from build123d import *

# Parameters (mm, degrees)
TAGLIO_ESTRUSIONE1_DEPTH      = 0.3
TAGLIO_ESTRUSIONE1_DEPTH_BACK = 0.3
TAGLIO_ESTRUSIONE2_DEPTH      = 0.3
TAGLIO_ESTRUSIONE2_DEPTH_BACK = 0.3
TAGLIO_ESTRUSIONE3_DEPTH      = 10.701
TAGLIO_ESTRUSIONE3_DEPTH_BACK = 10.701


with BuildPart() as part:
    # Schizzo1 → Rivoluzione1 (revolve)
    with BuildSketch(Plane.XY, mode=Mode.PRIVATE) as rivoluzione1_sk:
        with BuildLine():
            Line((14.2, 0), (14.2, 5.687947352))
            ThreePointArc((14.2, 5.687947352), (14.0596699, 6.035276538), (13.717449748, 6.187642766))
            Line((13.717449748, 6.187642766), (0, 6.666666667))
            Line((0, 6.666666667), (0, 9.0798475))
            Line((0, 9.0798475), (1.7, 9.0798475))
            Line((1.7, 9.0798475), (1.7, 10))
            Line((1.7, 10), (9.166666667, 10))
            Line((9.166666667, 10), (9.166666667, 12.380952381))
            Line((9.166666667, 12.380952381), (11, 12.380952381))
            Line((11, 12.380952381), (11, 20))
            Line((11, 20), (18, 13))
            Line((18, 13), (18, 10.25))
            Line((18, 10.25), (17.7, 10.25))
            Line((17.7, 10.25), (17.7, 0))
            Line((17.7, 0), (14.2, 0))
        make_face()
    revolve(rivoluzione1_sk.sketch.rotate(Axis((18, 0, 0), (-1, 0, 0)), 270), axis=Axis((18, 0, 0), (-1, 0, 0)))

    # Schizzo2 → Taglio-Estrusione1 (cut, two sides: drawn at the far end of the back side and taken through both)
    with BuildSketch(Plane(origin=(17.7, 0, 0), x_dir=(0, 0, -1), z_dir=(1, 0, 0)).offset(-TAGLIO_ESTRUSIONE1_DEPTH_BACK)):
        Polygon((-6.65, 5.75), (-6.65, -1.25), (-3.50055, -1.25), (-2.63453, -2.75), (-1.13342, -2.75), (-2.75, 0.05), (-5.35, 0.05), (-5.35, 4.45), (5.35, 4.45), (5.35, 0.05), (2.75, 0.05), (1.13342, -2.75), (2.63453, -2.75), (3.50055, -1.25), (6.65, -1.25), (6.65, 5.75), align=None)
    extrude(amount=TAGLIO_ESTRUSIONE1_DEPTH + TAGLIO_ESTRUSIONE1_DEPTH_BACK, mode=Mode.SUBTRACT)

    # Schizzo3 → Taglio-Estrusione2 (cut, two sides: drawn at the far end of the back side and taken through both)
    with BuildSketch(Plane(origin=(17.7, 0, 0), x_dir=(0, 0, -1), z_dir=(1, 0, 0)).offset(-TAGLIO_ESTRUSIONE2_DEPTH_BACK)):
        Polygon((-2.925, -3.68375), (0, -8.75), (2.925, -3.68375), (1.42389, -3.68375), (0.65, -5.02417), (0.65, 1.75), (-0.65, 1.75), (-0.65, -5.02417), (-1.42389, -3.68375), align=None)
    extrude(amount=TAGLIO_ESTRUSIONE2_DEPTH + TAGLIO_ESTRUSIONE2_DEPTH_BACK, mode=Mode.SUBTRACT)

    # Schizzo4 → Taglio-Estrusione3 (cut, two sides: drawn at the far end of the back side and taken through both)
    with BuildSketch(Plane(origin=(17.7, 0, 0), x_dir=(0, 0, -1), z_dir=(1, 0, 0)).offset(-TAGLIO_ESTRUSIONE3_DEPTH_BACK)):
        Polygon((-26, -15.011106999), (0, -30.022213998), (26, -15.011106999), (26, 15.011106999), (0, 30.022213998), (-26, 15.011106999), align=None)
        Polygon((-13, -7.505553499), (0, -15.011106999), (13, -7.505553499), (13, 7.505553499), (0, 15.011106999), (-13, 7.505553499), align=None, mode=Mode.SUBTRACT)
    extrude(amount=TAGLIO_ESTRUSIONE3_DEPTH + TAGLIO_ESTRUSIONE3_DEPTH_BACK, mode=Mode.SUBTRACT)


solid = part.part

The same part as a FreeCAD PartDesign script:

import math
import FreeCAD as App
import Part
import Sketcher
Q = App.Units.Quantity

doc = App.newDocument("Part")
body = doc.addObject("PartDesign::Body", "Body")

# Sketch on XY plane
sketch1 = body.newObject("Sketcher::SketchObject", "Sketch")
sketch1.AttachmentSupport = (doc.getObject("XY_Plane"), [""])
sketch1.MapMode = "FlatFace"
sketch1.addGeometry([
    Part.LineSegment(App.Vector(14.2, 5.69, 0), App.Vector(14.2, 0, 0)),  # 0
    Part.LineSegment(App.Vector(14.2, 0, 0), App.Vector(17.7, 0, 0)),  # 1
    Part.LineSegment(App.Vector(17.7, 0, 0), App.Vector(17.7, 10.25, 0)),  # 2
    Part.LineSegment(App.Vector(17.7, 10.25, 0), App.Vector(18, 10.25, 0)),  # 3
    Part.LineSegment(App.Vector(18, 10.25, 0), App.Vector(18, 13, 0)),  # 4
    Part.LineSegment(App.Vector(18, 13, 0), App.Vector(11, 20, 0)),  # 5
    Part.LineSegment(App.Vector(11, 20, 0), App.Vector(11, 12.38, 0)),  # 6
    Part.LineSegment(App.Vector(11, 12.38, 0), App.Vector(9.17, 12.38, 0)),  # 7
    Part.LineSegment(App.Vector(9.17, 12.38, 0), App.Vector(9.17, 10, 0)),  # 8
    Part.LineSegment(App.Vector(9.17, 10, 0), App.Vector(1.7, 10, 0)),  # 9
    Part.LineSegment(App.Vector(1.7, 10, 0), App.Vector(1.7, 9.08, 0)),  # 10
    Part.LineSegment(App.Vector(1.7, 9.08, 0), App.Vector(0, 9.08, 0)),  # 11
    Part.LineSegment(App.Vector(0, 9.08, 0), App.Vector(0, 6.67, 0)),  # 12
    Part.LineSegment(App.Vector(0, 6.67, 0), App.Vector(13.72, 6.19, 0)),  # 13
    Part.ArcOfCircle(Part.Circle(App.Vector(13.7, 5.69, 0), App.Vector(0, 0, 1), 0.5), math.radians(0), math.radians(88)),  # 14
], False)
sketch1.addConstraint([
    Sketcher.Constraint("Coincident", 0, 2, 1, 1),
    Sketcher.Constraint("Coincident", 1, 2, 2, 1),
    Sketcher.Constraint("Coincident", 2, 2, 3, 1),
    Sketcher.Constraint("Coincident", 3, 2, 4, 1),
    Sketcher.Constraint("Coincident", 4, 2, 5, 1),
    Sketcher.Constraint("Coincident", 5, 2, 6, 1),
    Sketcher.Constraint("Coincident", 6, 2, 7, 1),
    Sketcher.Constraint("Coincident", 7, 2, 8, 1),
    Sketcher.Constraint("Coincident", 8, 2, 9, 1),
    Sketcher.Constraint("Coincident", 9, 2, 10, 1),
    Sketcher.Constraint("Coincident", 10, 2, 11, 1),
    Sketcher.Constraint("Coincident", 11, 2, 12, 1),
    Sketcher.Constraint("Coincident", 12, 2, 13, 1),
    Sketcher.Constraint("Tangent", 13, 2, 14, 2),
    Sketcher.Constraint("Tangent", 14, 1, 0, 1),
    Sketcher.Constraint("Vertical", 0),
    Sketcher.Constraint("Horizontal", 1),
    Sketcher.Constraint("Vertical", 2),
    Sketcher.Constraint("Horizontal", 3),
    Sketcher.Constraint("Vertical", 4),
    Sketcher.Constraint("Vertical", 6),
    Sketcher.Constraint("Horizontal", 7),
    Sketcher.Constraint("Vertical", 8),
    Sketcher.Constraint("Horizontal", 9),
    Sketcher.Constraint("Vertical", 10),
    Sketcher.Constraint("Horizontal", 11),
    Sketcher.Constraint("Vertical", 12),
    Sketcher.Constraint("PointOnObject", 0, 2, -1),
    Sketcher.Constraint("PointOnObject", 11, 2, -2),
    Sketcher.Constraint("Radius", 14, 0.5),
    Sketcher.Constraint("Angle", 5, Q("135 deg")),
    Sketcher.Constraint("Angle", 13, Q("-2 deg")),
    Sketcher.Constraint("DistanceX", 1, 1, 1, 2, 3.5),
    Sketcher.Constraint("DistanceX", 3, 1, 3, 2, 0.3),
    Sketcher.Constraint("DistanceX", 11, 2, 11, 1, 1.7),
    Sketcher.Constraint("DistanceX", -1, 1, 3, 2, 18.0),
    Sketcher.Constraint("DistanceY", -1, 1, 4, 2, 13.0),
    Sketcher.Constraint("DistanceX", -1, 1, 5, 2, 11.0),
    Sketcher.Constraint("DistanceY", -1, 1, 8, 2, 10.0),
    Sketcher.Constraint("DistanceY", 2, 1, 2, 2, 10.25),
    Sketcher.Constraint("DistanceY", 12, 2, 12, 1, 2.413181),
    Sketcher.Constraint("DistanceX", 7, 2, 7, 1, 1.833333),
    Sketcher.Constraint("DistanceY", 0, 2, 0, 1, 5.687947),
    Sketcher.Constraint("DistanceY", 6, 2, 6, 1, 7.619048),
])
revolution = body.newObject("PartDesign::Revolution", "Revolution")
revolution.Profile = sketch1
revolution.ReferenceAxis = (sketch1, ["H_Axis"])
revolution.Angle = 360

# Sketch on YZ plane
sketch2 = body.newObject("Sketcher::SketchObject", "Sketch001")
sketch2.AttachmentSupport = (doc.getObject("YZ_Plane"), [""])
sketch2.MapMode = "FlatFace"
sketch2.AttachmentOffset = App.Placement(App.Vector(0, 0, 17.7), App.Rotation())
sketch2.addGeometry([
    Part.LineSegment(App.Vector(5.8, 6.7, 0), App.Vector(-1.2, 6.7, 0)),  # 0
    Part.LineSegment(App.Vector(-1.2, 6.7, 0), App.Vector(-1.2, 3.5, 0)),  # 1
    Part.LineSegment(App.Vector(-1.2, 3.5, 0), App.Vector(-2.8, 2.6, 0)),  # 2
    Part.LineSegment(App.Vector(-2.8, 2.6, 0), App.Vector(-2.8, 1.1, 0)),  # 3
    Part.LineSegment(App.Vector(-2.8, 1.1, 0), App.Vector(0.1, 2.8, 0)),  # 4
    Part.LineSegment(App.Vector(0.1, 2.8, 0), App.Vector(0.1, 5.3, 0)),  # 5
    Part.LineSegment(App.Vector(0.1, 5.3, 0), App.Vector(4.5, 5.3, 0)),  # 6
    Part.LineSegment(App.Vector(4.5, 5.3, 0), App.Vector(4.5, -5.3, 0)),  # 7
    Part.LineSegment(App.Vector(4.5, -5.3, 0), App.Vector(0.1, -5.3, 0)),  # 8
    Part.LineSegment(App.Vector(0.1, -5.3, 0), App.Vector(0.1, -2.8, 0)),  # 9
    Part.LineSegment(App.Vector(0.1, -2.8, 0), App.Vector(-2.8, -1.1, 0)),  # 10
    Part.LineSegment(App.Vector(-2.8, -1.1, 0), App.Vector(-2.8, -2.6, 0)),  # 11
    Part.LineSegment(App.Vector(-2.8, -2.6, 0), App.Vector(-1.2, -3.5, 0)),  # 12
    Part.LineSegment(App.Vector(-1.2, -3.5, 0), App.Vector(-1.2, -6.7, 0)),  # 13
    Part.LineSegment(App.Vector(-1.2, -6.7, 0), App.Vector(5.8, -6.7, 0)),  # 14
    Part.LineSegment(App.Vector(5.8, -6.7, 0), App.Vector(5.8, 6.7, 0)),  # 15
], False)
sketch2.addConstraint([
    Sketcher.Constraint("Coincident", 0, 2, 1, 1),
    Sketcher.Constraint("Coincident", 1, 2, 2, 1),
    Sketcher.Constraint("Coincident", 2, 2, 3, 1),
    Sketcher.Constraint("Coincident", 3, 2, 4, 1),
    Sketcher.Constraint("Coincident", 4, 2, 5, 1),
    Sketcher.Constraint("Coincident", 5, 2, 6, 1),
    Sketcher.Constraint("Coincident", 6, 2, 7, 1),
    Sketcher.Constraint("Coincident", 7, 2, 8, 1),
    Sketcher.Constraint("Coincident", 8, 2, 9, 1),
    Sketcher.Constraint("Coincident", 9, 2, 10, 1),
    Sketcher.Constraint("Coincident", 10, 2, 11, 1),
    Sketcher.Constraint("Coincident", 11, 2, 12, 1),
    Sketcher.Constraint("Coincident", 12, 2, 13, 1),
    Sketcher.Constraint("Coincident", 13, 2, 14, 1),
    Sketcher.Constraint("Coincident", 14, 2, 15, 1),
    Sketcher.Constraint("Coincident", 15, 2, 0, 1),
    Sketcher.Constraint("Horizontal", 0),
    Sketcher.Constraint("Vertical", 1),
    Sketcher.Constraint("Vertical", 3),
    Sketcher.Constraint("Vertical", 5),
    Sketcher.Constraint("Horizontal", 6),
    Sketcher.Constraint("Vertical", 7),
    Sketcher.Constraint("Horizontal", 8),
    Sketcher.Constraint("Vertical", 9),
    Sketcher.Constraint("Vertical", 11),
    Sketcher.Constraint("Vertical", 13),
    Sketcher.Constraint("Horizontal", 14),
    Sketcher.Constraint("Vertical", 15),
    Sketcher.Constraint("Symmetric", 5, 2, 8, 2, -1),
    Sketcher.Constraint("Symmetric", 3, 2, 10, 2, -1),
    Sketcher.Constraint("Symmetric", 1, 2, 12, 2, -1),
    Sketcher.Constraint("Equal", 5, 9),
    Sketcher.Constraint("Equal", 3, 11),
    Sketcher.Constraint("Equal", 1, 13),
    Sketcher.Constraint("DistanceX", 0, 2, 0, 1, 7.0),
    Sketcher.Constraint("Angle", 4, Q("29.999988 deg")),
    Sketcher.Constraint("DistanceX", 6, 1, 6, 2, 4.4),
    Sketcher.Constraint("DistanceY", 5, 1, 5, 2, 2.6),
    Sketcher.Constraint("DistanceY", 7, 2, 7, 1, 10.7),
    Sketcher.Constraint("DistanceY", 15, 1, 15, 2, 13.3),
    Sketcher.Constraint("DistanceX", 2, 2, 1, 2, 1.5),
    Sketcher.Constraint("DistanceX", 1, 2, 4, 2, 1.3),
    Sketcher.Constraint("DistanceX", 0, 2, -1, 1, 1.25),
    Sketcher.Constraint("DistanceY", 1, 2, 1, 1, 3.14945),
    Sketcher.Constraint("DistanceY", 3, 2, 3, 1, 1.50111),
])
pocket1 = body.newObject("PartDesign::Pocket", "Pocket")
pocket1.Profile = sketch2
pocket1.Type = "TwoLengths"
pocket1.Length = 0.3
pocket1.Length2 = 0.3
pocket1.Reversed = True

# Sketch on YZ plane
sketch3 = body.newObject("Sketcher::SketchObject", "Sketch002")
sketch3.AttachmentSupport = (doc.getObject("YZ_Plane"), [""])
sketch3.MapMode = "FlatFace"
sketch3.AttachmentOffset = App.Placement(App.Vector(0, 0, 17.7), App.Rotation())
sketch3.addGeometry([
    Part.LineSegment(App.Vector(-3.7, 2.9, 0), App.Vector(-8.8, 0, 0)),  # 0
    Part.LineSegment(App.Vector(-8.8, 0, 0), App.Vector(-3.7, -2.9, 0)),  # 1
    Part.LineSegment(App.Vector(-3.7, -2.9, 0), App.Vector(-3.7, -1.4, 0)),  # 2
    Part.LineSegment(App.Vector(-3.7, -1.4, 0), App.Vector(-5, -0.7, 0)),  # 3
    Part.LineSegment(App.Vector(-5, -0.7, 0), App.Vector(1.8, -0.7, 0)),  # 4
    Part.LineSegment(App.Vector(1.8, -0.7, 0), App.Vector(1.8, 0.7, 0)),  # 5
    Part.LineSegment(App.Vector(1.8, 0.7, 0), App.Vector(-5, 0.7, 0)),  # 6
    Part.LineSegment(App.Vector(-5, 0.7, 0), App.Vector(-3.7, 1.4, 0)),  # 7
    Part.LineSegment(App.Vector(-3.7, 1.4, 0), App.Vector(-3.7, 2.9, 0)),  # 8
], False)
sketch3.addConstraint([
    Sketcher.Constraint("Coincident", 0, 2, 1, 1),
    Sketcher.Constraint("Coincident", 1, 2, 2, 1),
    Sketcher.Constraint("Coincident", 2, 2, 3, 1),
    Sketcher.Constraint("Coincident", 3, 2, 4, 1),
    Sketcher.Constraint("Coincident", 4, 2, 5, 1),
    Sketcher.Constraint("Coincident", 5, 2, 6, 1),
    Sketcher.Constraint("Coincident", 6, 2, 7, 1),
    Sketcher.Constraint("Coincident", 7, 2, 8, 1),
    Sketcher.Constraint("Coincident", 8, 2, 0, 1),
    Sketcher.Constraint("Vertical", 2),
    Sketcher.Constraint("Horizontal", 4),
    Sketcher.Constraint("Vertical", 5),
    Sketcher.Constraint("Horizontal", 6),
    Sketcher.Constraint("Vertical", 8),
    Sketcher.Constraint("Symmetric", 3, 2, 6, 2, -1),
    Sketcher.Constraint("Symmetric", 2, 2, 7, 2, -1),
    Sketcher.Constraint("PointOnObject", 0, 2, -1),
    Sketcher.Constraint("Parallel", 1, 3),
    Sketcher.Constraint("Parallel", 0, 7),
    Sketcher.Constraint("Angle", 0, Q("-150.000007 deg")),
    Sketcher.Constraint("DistanceY", 5, 1, 5, 2, 1.3),
    Sketcher.Constraint("DistanceX", 0, 2, 4, 2, 10.5),
    Sketcher.Constraint("Distance", 0, 5.850001),
    Sketcher.Constraint("DistanceX", 0, 2, -1, 1, 8.75),
    Sketcher.Constraint("DistanceX", 4, 1, 4, 2, 6.77417),
])
pocket2 = body.newObject("PartDesign::Pocket", "Pocket001")
pocket2.Profile = sketch3
pocket2.Type = "TwoLengths"
pocket2.Length = 0.3
pocket2.Length2 = 0.3
pocket2.Reversed = True

# Sketch on YZ plane
sketch4 = body.newObject("Sketcher::SketchObject", "Sketch003")
sketch4.AttachmentSupport = (doc.getObject("YZ_Plane"), [""])
sketch4.MapMode = "FlatFace"
sketch4.AttachmentOffset = App.Placement(App.Vector(0, 0, 17.7), App.Rotation())
sketch4.addGeometry([
    Part.LineSegment(App.Vector(-15, 26, 0), App.Vector(-30, 0, 0)),  # 0
    Part.LineSegment(App.Vector(-30, 0, 0), App.Vector(-15, -26, 0)),  # 1
    Part.LineSegment(App.Vector(-15, -26, 0), App.Vector(15, -26, 0)),  # 2
    Part.LineSegment(App.Vector(15, -26, 0), App.Vector(30, 0, 0)),  # 3
    Part.LineSegment(App.Vector(30, 0, 0), App.Vector(15, 26, 0)),  # 4
    Part.LineSegment(App.Vector(15, 26, 0), App.Vector(-15, 26, 0)),  # 5
    Part.LineSegment(App.Vector(-15, 0, 0), App.Vector(-8, 13, 0)),  # 6
    Part.LineSegment(App.Vector(-8, 13, 0), App.Vector(8, 13, 0)),  # 7
    Part.LineSegment(App.Vector(8, 13, 0), App.Vector(15, 0, 0)),  # 8
    Part.LineSegment(App.Vector(15, 0, 0), App.Vector(8, -13, 0)),  # 9
    Part.LineSegment(App.Vector(8, -13, 0), App.Vector(-8, -13, 0)),  # 10
    Part.LineSegment(App.Vector(-8, -13, 0), App.Vector(-15, 0, 0)),  # 11
], False)
sketch4.addConstraint([
    Sketcher.Constraint("Coincident", 0, 2, 1, 1),
    Sketcher.Constraint("Coincident", 1, 2, 2, 1),
    Sketcher.Constraint("Coincident", 2, 2, 3, 1),
    Sketcher.Constraint("Coincident", 3, 2, 4, 1),
    Sketcher.Constraint("Coincident", 4, 2, 5, 1),
    Sketcher.Constraint("Coincident", 5, 2, 0, 1),
    Sketcher.Constraint("Coincident", 6, 2, 7, 1),
    Sketcher.Constraint("Coincident", 7, 2, 8, 1),
    Sketcher.Constraint("Coincident", 8, 2, 9, 1),
    Sketcher.Constraint("Coincident", 9, 2, 10, 1),
    Sketcher.Constraint("Coincident", 10, 2, 11, 1),
    Sketcher.Constraint("Coincident", 11, 2, 6, 1),
    Sketcher.Constraint("Horizontal", 2),
    Sketcher.Constraint("Horizontal", 5),
    Sketcher.Constraint("Horizontal", 7),
    Sketcher.Constraint("Horizontal", 10),
    Sketcher.Constraint("Symmetric", 0, 2, 3, 2, -1, 1),
    Sketcher.Constraint("Symmetric", 1, 2, 4, 2, -1, 1),
    Sketcher.Constraint("Symmetric", 6, 2, 9, 2, -1, 1),
    Sketcher.Constraint("Symmetric", 8, 2, 11, 2, -1, 1),
    Sketcher.Constraint("PointOnObject", 0, 2, -1),
    Sketcher.Constraint("PointOnObject", 8, 2, -1),
    Sketcher.Constraint("Parallel", 0, 3),
    Sketcher.Constraint("Parallel", 3, 6),
    Sketcher.Constraint("Parallel", 4, 8),
    Sketcher.Constraint("Parallel", 8, 11),
    Sketcher.Constraint("Vertical", 2, 2, 4, 2),
    Sketcher.Constraint("Vertical", 4, 2, 8, 2),
    Sketcher.Constraint("Angle", 0, Q("-120 deg")),
    Sketcher.Constraint("DistanceY", 1, 2, -1, 1, 26.0),
    Sketcher.Constraint("DistanceY", -1, 1, 6, 2, 13.0),
    Sketcher.Constraint("DistanceX", 2, 1, 2, 2, 30.022214),
])
pocket3 = body.newObject("PartDesign::Pocket", "Pocket002")
pocket3.Profile = sketch4
pocket3.Type = "ThroughAll"
pocket3.Midplane = True

doc.recompute()
